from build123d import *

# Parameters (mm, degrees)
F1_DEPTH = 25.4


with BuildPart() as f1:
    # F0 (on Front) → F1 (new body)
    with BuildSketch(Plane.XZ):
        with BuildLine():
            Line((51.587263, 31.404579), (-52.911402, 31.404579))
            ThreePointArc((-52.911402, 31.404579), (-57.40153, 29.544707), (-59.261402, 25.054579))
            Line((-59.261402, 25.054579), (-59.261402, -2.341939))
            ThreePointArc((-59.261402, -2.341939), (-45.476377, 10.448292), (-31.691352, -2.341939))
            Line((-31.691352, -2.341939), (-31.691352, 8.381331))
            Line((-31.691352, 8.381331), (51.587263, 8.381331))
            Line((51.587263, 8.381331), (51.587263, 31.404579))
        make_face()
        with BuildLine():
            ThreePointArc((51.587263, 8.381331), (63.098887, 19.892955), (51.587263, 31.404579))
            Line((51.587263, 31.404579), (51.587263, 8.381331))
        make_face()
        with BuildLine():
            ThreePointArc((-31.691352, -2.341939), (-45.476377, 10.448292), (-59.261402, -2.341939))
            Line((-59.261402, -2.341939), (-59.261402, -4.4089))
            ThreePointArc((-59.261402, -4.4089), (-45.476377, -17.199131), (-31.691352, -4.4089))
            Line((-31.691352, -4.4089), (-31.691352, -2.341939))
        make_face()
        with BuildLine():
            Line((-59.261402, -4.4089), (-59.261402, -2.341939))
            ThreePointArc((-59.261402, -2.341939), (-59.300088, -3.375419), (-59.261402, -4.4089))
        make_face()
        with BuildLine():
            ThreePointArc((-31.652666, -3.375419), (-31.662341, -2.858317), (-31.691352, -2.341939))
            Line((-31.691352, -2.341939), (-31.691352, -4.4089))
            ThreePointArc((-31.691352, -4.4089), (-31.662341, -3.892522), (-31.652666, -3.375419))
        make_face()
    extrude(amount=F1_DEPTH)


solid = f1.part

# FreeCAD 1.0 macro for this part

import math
import FreeCAD as App
import Part
import Sketcher
from FreeCAD import Vector
Q = App.Units.Quantity

doc = App.newDocument("Part")
body = doc.addObject("PartDesign::Body", "Body")

sketch1 = body.newObject("Sketcher::SketchObject", "Sketch")
sketch1.AttachmentSupport = (doc.getObject("XZ_Plane"), [""])
sketch1.MapMode = "FlatFace"
sketch1.addGeometry(Part.LineSegment(Vector(51.587263, 31.404579, 0), Vector(-52.911402, 31.404579, 0)), False)
sketch1.addGeometry(Part.ArcOfCircle(Part.Circle(Vector(-52.911402, 25.054579, 0), Vector(0, 0, 1), 6.35), math.radians(90.000002), math.radians(179.999998)), False)
sketch1.addGeometry(Part.LineSegment(Vector(-59.261402, 25.054579, 0), Vector(-59.261402, -2.341939, 0)), False)
sketch1.addGeometry(Part.ArcOfCircle(Part.Circle(Vector(-45.476243, -3.37542, 0), Vector(0, 0, 1), 13.823845), math.radians(175.712527), math.radians(184.287473)), False)
sketch1.addGeometry(Part.ArcOfCircle(Part.Circle(Vector(-45.476377, -3.37542, 0), Vector(0, 0, 1), 13.823711), math.radians(-175.712486), math.radians(-4.287514)), False)
sketch1.addGeometry(Part.ArcOfCircle(Part.Circle(Vector(-45.476656, -3.375414, 0), Vector(0, 0, 1), 13.82399), math.radians(-4.287451), math.radians(-0.00002)), False)
sketch1.addGeometry(Part.ArcOfCircle(Part.Circle(Vector(-45.476656, -3.375425, 0), Vector(0, 0, 1), 13.82399), math.radians(0.000025), math.radians(4.287451)), False)
sketch1.addGeometry(Part.LineSegment(Vector(-31.691352, -2.341939, 0), Vector(-31.691352, 8.381331, 0)), False)
sketch1.addGeometry(Part.LineSegment(Vector(-31.691352, 8.381331, 0), Vector(51.587263, 8.381331, 0)), False)
sketch1.addGeometry(Part.ArcOfCircle(Part.Circle(Vector(51.587263, 19.892955, 0), Vector(0, 0, 1), 11.511624), math.radians(-90), math.radians(90)), False)
sketch1.addConstraint(Sketcher.Constraint("Coincident", 0, 2, 1, 1))
sketch1.addConstraint(Sketcher.Constraint("Coincident", 1, 2, 2, 1))
sketch1.addConstraint(Sketcher.Constraint("Coincident", 2, 2, 3, 1))
sketch1.addConstraint(Sketcher.Constraint("Coincident", 3, 2, 4, 1))
sketch1.addConstraint(Sketcher.Constraint("Coincident", 4, 2, 5, 1))
sketch1.addConstraint(Sketcher.Constraint("Coincident", 5, 2, 6, 1))
sketch1.addConstraint(Sketcher.Constraint("Coincident", 6, 2, 7, 1))
sketch1.addConstraint(Sketcher.Constraint("Coincident", 7, 2, 8, 1))
sketch1.addConstraint(Sketcher.Constraint("Coincident", 8, 2, 9, 1))
sketch1.addConstraint(Sketcher.Constraint("Coincident", 9, 2, 0, 1))
sketch1.addConstraint(Sketcher.Constraint("Horizontal", 0))
sketch1.addConstraint(Sketcher.Constraint("Vertical", 2))
sketch1.addConstraint(Sketcher.Constraint("Vertical", 7))
sketch1.addConstraint(Sketcher.Constraint("Horizontal", 8))
sketch1.addConstraint(Sketcher.Constraint("Radius", 1, Q("0.25 in")))
sketch1.addConstraint(Sketcher.Constraint("DistanceX", 1, 2, 0, 2, Q("0.25 in")))
sketch1.addConstraint(Sketcher.Constraint("DistanceY", 1, 2, 0, 2, Q("0.25 in")))
sketch1.addConstraint(Sketcher.Constraint("Radius", 4, 13.823711))
sketch1.addConstraint(Sketcher.Constraint("Radius", 5, 13.82399))
sketch1.addConstraint(Sketcher.Constraint("Radius", 6, 13.82399))
sketch1.addConstraint(Sketcher.Constraint("Radius", 3, 13.823845))
sketch1.addConstraint(Sketcher.Constraint("Radius", 9, 11.511624))
sketch1.addConstraint(Sketcher.Constraint("DistanceY", 2, 2, 2, 1, 27.396518))
sketch1.addConstraint(Sketcher.Constraint("DistanceY", 7, 1, 7, 2, 10.72327))
sketch1.addConstraint(Sketcher.Constraint("DistanceX", 1, 3, -1, 1, 52.911402))
sketch1.addConstraint(Sketcher.Constraint("DistanceY", 3, 2, -1, 1, 4.4089))
sketch1.addConstraint(Sketcher.Constraint("DistanceY", 4, 2, -1, 1, 4.4089))
sketch1.addConstraint(Sketcher.Constraint("DistanceY", 3, 3, 1, 3, 28.429998))
sketch1.addConstraint(Sketcher.Constraint("DistanceY", 4, 3, 1, 3, 28.429998))
sketch1.addConstraint(Sketcher.Constraint("DistanceX", 0, 2, 0, 1, 104.498665))
sketch1.addConstraint(Sketcher.Constraint("DistanceX", 8, 1, 8, 2, 83.278615))
sketch1.addConstraint(Sketcher.Constraint("DistanceY", -1, 1, 1, 3, 25.054579))
sketch1.addConstraint(Sketcher.Constraint("DistanceY", 5, 2, -1, 1, 3.375419))
sketch1.addConstraint(Sketcher.Constraint("DistanceX", 7, 2, -1, 1, 31.691352))
sketch1.addConstraint(Sketcher.Constraint("DistanceX", 5, 3, 4, 3, 0.000279))
sketch1.addConstraint(Sketcher.Constraint("DistanceX", 4, 3, 9, 3, 97.06364))
pad1 = body.newObject("PartDesign::Pad", "Pad")
pad1.Profile = sketch1
pad1.Length = Q("1 in")

doc.recompute()
